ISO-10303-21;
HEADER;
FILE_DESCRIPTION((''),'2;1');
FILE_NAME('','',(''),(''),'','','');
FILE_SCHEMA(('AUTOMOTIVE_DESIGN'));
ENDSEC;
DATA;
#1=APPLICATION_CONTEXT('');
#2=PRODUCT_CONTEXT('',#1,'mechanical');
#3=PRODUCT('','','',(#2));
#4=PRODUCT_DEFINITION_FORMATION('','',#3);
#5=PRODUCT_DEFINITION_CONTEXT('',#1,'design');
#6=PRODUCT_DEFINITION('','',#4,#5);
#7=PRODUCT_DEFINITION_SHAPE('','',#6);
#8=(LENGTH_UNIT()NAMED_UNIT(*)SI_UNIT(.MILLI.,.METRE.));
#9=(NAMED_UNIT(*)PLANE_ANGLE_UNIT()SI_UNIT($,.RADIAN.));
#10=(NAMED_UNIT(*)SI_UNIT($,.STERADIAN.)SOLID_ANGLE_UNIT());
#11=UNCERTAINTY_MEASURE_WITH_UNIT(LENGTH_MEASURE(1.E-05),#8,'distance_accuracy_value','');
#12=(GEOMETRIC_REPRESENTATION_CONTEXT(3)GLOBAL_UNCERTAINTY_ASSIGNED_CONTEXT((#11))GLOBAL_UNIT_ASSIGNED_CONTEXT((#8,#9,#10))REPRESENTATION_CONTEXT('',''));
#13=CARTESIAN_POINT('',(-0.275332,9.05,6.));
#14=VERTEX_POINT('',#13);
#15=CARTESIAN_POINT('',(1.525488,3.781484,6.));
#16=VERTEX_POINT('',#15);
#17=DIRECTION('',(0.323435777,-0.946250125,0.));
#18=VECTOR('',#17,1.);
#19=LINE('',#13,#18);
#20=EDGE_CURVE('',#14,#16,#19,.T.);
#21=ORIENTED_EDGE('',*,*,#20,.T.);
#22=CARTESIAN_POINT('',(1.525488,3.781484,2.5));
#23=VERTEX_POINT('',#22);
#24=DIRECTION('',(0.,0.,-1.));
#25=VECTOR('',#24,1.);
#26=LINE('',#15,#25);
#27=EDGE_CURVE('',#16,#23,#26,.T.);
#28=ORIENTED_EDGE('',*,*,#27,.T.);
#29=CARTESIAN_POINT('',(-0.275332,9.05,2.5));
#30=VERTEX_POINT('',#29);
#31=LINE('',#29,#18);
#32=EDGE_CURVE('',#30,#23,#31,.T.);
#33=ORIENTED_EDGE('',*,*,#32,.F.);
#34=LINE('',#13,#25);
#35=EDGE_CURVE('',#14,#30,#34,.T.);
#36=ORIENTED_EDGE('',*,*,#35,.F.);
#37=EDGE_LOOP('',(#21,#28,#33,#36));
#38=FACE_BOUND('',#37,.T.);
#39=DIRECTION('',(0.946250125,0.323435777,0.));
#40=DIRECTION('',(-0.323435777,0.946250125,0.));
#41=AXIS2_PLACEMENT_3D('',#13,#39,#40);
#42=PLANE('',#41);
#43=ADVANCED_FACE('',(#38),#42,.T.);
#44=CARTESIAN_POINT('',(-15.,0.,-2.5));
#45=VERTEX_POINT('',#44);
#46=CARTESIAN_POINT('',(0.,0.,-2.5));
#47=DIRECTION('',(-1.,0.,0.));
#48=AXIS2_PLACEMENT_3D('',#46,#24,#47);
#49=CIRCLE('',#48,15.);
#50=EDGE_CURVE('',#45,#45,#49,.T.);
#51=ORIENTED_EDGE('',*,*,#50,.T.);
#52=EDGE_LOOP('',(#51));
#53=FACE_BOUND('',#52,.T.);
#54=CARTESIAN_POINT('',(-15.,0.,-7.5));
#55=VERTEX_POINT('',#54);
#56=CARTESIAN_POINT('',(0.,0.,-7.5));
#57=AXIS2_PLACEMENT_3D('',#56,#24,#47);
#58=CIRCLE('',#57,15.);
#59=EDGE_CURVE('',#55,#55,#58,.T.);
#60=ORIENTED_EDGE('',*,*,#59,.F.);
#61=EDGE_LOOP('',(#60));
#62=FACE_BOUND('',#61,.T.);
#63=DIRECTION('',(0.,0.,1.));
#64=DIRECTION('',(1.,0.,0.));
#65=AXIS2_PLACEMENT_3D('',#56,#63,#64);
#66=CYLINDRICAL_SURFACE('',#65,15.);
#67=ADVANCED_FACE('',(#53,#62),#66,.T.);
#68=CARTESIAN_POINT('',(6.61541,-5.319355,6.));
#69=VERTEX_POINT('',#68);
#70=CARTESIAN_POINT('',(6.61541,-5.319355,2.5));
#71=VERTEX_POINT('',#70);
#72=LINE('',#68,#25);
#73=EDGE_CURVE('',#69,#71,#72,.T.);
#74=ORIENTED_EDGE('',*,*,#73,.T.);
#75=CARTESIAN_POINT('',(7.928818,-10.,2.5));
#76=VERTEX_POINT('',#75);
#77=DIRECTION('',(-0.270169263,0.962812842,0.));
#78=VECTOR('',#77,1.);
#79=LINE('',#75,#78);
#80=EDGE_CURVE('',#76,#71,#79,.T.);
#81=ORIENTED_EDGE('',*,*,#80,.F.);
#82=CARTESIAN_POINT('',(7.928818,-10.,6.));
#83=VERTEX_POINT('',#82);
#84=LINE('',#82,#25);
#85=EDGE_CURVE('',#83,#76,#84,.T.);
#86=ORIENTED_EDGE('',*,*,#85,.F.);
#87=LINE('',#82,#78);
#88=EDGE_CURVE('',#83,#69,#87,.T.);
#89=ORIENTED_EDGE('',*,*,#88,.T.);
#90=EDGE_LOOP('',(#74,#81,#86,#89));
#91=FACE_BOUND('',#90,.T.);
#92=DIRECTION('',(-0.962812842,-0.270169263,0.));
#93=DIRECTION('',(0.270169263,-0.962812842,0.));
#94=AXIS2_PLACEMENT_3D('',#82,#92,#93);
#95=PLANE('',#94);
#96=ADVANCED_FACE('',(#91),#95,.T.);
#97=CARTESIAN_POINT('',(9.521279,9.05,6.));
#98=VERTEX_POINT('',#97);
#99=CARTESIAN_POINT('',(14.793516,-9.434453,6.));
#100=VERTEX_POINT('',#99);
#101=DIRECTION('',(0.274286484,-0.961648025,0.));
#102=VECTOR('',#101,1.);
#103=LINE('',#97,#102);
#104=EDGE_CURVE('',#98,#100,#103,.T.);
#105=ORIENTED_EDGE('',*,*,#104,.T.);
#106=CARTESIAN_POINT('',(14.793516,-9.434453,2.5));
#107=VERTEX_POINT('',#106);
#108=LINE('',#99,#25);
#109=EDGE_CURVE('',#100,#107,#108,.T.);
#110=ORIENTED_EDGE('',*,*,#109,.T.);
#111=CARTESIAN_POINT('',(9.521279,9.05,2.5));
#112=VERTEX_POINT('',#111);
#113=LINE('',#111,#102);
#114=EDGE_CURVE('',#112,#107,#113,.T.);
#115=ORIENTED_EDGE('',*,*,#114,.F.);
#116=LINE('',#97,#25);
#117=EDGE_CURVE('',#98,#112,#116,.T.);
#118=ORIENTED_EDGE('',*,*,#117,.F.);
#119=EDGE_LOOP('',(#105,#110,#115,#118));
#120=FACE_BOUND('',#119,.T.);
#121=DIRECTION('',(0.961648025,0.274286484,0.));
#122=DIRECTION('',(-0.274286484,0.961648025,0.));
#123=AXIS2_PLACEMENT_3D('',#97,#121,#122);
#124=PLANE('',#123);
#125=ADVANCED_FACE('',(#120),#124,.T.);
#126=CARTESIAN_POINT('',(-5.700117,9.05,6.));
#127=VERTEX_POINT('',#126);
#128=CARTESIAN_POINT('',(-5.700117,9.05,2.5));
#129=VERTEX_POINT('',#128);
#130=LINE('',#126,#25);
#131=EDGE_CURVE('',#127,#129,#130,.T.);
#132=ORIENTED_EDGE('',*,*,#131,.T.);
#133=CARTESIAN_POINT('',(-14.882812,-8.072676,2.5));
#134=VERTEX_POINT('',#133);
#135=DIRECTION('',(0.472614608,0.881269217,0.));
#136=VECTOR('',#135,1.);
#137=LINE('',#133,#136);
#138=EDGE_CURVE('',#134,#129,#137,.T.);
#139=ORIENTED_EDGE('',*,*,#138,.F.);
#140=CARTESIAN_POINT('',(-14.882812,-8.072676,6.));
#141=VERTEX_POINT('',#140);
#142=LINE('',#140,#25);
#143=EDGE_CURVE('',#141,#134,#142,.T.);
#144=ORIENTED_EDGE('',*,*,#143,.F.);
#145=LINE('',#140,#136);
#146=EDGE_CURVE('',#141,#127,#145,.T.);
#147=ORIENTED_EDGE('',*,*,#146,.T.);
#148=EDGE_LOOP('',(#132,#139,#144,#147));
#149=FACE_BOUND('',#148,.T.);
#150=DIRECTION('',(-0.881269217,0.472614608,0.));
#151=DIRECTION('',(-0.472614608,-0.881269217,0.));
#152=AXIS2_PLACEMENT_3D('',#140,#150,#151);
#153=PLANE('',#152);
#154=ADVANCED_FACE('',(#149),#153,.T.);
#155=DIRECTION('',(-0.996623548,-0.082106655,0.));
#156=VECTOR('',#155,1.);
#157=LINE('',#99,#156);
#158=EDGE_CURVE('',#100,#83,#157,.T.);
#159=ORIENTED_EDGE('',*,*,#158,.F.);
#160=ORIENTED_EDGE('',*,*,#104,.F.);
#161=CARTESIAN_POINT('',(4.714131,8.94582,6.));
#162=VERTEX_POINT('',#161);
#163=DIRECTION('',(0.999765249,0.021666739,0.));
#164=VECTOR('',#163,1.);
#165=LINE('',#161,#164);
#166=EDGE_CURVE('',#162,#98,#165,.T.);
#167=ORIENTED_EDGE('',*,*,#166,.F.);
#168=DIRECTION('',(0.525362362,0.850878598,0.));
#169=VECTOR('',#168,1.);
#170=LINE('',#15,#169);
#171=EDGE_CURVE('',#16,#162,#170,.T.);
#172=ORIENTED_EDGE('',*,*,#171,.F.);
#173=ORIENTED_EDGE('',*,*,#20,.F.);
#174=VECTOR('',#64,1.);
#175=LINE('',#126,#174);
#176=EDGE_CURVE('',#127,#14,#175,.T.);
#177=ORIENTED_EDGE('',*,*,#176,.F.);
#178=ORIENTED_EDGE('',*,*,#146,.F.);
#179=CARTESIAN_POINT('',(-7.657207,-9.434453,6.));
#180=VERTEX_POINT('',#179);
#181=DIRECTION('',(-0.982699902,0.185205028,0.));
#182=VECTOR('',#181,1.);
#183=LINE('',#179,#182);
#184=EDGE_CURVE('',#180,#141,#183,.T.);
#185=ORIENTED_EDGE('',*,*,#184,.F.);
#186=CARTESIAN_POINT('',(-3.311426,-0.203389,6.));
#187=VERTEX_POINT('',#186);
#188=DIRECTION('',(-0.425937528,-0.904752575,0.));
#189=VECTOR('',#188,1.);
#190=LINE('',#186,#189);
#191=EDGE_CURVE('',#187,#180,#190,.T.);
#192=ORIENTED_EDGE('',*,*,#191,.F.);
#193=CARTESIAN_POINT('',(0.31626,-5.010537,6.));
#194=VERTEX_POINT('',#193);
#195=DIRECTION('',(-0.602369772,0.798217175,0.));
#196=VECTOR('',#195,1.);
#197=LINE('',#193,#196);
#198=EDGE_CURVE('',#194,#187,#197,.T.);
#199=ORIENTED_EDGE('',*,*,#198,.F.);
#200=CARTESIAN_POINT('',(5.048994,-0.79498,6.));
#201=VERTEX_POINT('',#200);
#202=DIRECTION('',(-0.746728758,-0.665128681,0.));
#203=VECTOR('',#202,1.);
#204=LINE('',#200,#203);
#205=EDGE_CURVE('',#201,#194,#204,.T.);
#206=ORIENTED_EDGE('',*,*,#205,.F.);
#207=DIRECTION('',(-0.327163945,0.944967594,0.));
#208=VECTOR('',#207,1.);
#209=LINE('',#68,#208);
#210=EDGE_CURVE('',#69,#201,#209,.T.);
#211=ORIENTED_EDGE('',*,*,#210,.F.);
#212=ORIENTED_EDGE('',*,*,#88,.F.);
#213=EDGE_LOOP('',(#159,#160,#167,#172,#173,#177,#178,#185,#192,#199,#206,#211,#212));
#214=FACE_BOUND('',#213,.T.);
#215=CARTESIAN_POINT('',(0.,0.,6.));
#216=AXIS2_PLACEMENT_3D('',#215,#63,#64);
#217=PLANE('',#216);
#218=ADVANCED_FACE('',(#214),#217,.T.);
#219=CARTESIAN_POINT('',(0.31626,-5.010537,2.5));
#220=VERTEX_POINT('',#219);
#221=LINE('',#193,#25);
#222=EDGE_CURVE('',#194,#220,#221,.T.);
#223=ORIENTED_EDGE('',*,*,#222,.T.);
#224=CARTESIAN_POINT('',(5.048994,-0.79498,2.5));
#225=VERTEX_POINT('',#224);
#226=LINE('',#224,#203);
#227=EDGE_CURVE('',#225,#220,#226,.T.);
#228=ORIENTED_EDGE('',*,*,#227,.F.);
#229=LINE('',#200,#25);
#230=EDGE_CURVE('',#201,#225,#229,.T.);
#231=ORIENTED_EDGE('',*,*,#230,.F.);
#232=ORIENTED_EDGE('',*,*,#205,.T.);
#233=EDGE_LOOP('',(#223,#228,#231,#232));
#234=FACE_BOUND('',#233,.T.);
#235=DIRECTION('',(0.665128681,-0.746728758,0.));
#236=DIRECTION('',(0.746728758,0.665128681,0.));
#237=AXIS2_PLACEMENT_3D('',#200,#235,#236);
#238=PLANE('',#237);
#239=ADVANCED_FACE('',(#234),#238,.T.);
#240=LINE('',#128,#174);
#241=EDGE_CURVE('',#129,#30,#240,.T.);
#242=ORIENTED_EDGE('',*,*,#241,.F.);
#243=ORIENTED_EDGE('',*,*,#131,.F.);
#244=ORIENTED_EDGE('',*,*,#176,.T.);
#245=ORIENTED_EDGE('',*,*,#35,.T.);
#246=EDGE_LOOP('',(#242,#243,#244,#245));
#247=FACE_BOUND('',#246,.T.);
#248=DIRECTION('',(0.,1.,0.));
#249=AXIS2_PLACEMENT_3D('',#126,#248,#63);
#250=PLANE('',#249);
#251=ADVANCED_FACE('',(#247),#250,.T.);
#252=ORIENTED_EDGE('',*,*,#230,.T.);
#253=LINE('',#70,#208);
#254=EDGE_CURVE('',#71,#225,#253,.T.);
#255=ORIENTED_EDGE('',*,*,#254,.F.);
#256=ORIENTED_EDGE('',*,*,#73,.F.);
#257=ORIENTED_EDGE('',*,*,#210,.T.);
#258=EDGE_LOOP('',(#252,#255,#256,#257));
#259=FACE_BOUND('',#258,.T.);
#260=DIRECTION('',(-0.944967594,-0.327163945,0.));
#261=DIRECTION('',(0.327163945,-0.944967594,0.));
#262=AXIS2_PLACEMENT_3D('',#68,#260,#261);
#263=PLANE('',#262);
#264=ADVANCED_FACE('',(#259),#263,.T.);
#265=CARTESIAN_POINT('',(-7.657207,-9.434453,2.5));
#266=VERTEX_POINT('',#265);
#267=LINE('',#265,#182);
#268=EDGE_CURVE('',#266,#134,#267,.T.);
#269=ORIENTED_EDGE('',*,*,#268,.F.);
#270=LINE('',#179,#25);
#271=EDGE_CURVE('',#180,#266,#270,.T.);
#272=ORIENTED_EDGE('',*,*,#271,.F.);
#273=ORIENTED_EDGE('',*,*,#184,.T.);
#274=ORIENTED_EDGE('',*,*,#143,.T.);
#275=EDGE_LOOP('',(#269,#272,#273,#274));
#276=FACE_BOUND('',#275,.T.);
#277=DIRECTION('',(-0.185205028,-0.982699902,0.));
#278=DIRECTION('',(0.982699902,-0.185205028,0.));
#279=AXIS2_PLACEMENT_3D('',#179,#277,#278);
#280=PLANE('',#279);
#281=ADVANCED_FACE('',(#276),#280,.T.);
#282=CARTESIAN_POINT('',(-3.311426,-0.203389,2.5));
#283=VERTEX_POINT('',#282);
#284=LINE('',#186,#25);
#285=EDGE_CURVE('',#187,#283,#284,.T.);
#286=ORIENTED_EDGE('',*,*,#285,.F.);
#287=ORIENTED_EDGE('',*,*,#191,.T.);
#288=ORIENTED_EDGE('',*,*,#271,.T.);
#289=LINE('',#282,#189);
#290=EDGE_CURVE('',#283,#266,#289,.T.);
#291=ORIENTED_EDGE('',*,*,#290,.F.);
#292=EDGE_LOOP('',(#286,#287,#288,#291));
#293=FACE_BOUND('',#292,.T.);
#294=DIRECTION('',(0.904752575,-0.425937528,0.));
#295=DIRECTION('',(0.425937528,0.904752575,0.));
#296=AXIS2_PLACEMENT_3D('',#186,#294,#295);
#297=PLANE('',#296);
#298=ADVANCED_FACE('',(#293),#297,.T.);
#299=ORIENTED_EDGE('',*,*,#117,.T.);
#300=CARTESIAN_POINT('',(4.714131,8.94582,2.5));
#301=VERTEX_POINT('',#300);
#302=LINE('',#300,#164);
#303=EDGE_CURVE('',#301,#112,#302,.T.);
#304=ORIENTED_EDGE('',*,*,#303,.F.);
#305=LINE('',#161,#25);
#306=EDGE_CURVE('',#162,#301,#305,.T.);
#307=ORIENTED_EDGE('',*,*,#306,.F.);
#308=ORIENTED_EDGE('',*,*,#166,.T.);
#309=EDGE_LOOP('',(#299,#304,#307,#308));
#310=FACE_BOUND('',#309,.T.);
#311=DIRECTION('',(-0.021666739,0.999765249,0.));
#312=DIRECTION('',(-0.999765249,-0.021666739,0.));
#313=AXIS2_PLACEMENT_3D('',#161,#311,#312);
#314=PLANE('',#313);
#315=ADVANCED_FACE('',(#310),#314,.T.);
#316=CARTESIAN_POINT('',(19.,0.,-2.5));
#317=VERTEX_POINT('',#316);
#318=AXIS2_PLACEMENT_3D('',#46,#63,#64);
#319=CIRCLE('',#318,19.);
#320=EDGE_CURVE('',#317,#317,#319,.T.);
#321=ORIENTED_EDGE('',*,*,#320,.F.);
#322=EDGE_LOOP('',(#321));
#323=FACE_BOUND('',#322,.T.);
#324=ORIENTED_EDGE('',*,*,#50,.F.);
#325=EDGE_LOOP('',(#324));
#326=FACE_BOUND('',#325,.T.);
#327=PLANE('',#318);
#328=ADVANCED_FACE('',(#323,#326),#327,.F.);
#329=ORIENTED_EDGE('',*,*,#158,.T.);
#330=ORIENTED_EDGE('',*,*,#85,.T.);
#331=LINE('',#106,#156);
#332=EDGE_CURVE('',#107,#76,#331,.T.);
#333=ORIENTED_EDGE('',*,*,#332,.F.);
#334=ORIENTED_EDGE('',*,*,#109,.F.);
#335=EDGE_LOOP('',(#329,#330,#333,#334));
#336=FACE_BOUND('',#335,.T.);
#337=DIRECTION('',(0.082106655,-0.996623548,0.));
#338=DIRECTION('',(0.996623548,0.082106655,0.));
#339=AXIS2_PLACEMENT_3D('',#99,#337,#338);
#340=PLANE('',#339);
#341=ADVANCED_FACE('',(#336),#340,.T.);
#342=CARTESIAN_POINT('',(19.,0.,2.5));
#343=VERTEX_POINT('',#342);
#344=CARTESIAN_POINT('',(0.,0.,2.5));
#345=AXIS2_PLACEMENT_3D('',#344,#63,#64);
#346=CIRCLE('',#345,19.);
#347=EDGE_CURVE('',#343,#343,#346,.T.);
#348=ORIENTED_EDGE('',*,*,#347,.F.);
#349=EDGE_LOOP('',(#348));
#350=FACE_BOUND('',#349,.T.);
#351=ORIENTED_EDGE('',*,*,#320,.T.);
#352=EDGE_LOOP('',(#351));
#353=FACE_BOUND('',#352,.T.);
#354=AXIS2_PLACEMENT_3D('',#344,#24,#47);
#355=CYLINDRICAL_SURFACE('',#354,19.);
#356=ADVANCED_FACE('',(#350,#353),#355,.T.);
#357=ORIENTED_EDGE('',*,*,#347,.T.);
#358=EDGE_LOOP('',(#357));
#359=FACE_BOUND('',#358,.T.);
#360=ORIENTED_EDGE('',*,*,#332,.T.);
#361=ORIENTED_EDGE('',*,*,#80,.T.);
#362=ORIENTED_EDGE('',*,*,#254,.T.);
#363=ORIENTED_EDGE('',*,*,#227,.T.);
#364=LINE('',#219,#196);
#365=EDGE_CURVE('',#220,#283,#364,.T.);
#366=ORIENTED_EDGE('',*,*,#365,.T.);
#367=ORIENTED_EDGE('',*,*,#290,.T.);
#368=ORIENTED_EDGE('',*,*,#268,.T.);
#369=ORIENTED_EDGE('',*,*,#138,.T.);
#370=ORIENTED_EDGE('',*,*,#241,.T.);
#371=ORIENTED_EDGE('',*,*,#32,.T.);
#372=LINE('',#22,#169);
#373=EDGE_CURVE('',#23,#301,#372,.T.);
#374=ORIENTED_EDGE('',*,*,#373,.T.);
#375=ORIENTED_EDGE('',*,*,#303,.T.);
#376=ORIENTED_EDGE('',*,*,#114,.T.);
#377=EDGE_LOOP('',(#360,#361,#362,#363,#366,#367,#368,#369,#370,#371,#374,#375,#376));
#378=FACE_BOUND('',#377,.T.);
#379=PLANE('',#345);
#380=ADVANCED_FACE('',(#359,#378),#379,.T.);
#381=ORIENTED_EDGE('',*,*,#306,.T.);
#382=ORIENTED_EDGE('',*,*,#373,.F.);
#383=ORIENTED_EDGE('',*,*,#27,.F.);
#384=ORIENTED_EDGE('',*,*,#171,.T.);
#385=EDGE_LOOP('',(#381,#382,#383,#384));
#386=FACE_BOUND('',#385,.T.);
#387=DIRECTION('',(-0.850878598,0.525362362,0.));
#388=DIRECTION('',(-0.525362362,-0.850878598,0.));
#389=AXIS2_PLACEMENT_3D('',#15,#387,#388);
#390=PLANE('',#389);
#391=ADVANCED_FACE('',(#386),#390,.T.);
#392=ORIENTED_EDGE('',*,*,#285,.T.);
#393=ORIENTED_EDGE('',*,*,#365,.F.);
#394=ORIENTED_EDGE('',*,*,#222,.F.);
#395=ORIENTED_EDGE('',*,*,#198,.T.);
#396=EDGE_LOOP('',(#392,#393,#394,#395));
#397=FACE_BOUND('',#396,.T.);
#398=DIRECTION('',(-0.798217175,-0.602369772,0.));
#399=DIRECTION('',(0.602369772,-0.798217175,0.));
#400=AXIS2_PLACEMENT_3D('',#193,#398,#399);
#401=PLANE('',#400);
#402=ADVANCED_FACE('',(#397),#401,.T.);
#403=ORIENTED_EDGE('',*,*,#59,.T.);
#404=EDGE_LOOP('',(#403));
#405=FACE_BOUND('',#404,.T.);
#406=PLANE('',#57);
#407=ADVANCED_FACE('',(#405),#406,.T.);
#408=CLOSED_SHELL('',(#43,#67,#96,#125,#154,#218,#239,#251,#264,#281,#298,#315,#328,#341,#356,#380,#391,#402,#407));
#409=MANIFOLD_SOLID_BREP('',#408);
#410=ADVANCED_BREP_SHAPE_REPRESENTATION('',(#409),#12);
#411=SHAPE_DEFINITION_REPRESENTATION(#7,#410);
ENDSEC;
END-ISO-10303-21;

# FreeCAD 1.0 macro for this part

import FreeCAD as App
import Part
import Sketcher
Q = App.Units.Quantity


def add_polygon(sketch, points):
    """Adds a closed chain of lines whose ends are joined by coincident constraints."""
    first, n = sketch.GeometryCount, len(points)
    for a, b in zip(points, points[1:] + points[:1]):
        sketch.addGeometry(Part.LineSegment(App.Vector(*a, 0), App.Vector(*b, 0)), False)
    for i in range(n):
        sketch.addConstraint(Sketcher.Constraint("Coincident", first + i, 2, first + (i + 1) % n, 1))

doc = App.newDocument("Part")
body = doc.addObject("PartDesign::Body", "Body")

# Sketch on XY plane
sketch1 = body.newObject("Sketcher::SketchObject", "Sketch")
sketch1.AttachmentSupport = (doc.getObject("XY_Plane"), [""])
sketch1.MapMode = "FlatFace"
sketch1.addGeometry(Part.Circle(App.Vector(0, 0, 0), App.Vector(0, 0, 1), 19), False)
sketch1.addConstraint([
    Sketcher.Constraint("Coincident", 0, 3, -1, 1),
    Sketcher.Constraint("Diameter", 0, Q("38 mm")),
])
pad1 = body.newObject("PartDesign::Pad", "Pad")
pad1.Profile = sketch1
pad1.Length = 5
pad1.Midplane = True

# Sketch on XY plane
sketch2 = body.newObject("Sketcher::SketchObject", "Sketch001")
sketch2.AttachmentSupport = (doc.getObject("XY_Plane"), [""])
sketch2.MapMode = "FlatFace"
sketch2.AttachmentOffset = App.Placement(App.Vector(0, 0, -2.5), App.Rotation())
sketch2.addGeometry(Part.Circle(App.Vector(0, 0, 0), App.Vector(0, 0, 1), 15), False)
sketch2.addConstraint([
    Sketcher.Constraint("Coincident", 0, 3, -1, 1),
    Sketcher.Constraint("Diameter", 0, Q("30 mm")),
])
pad2 = body.newObject("PartDesign::Pad", "Pad001")
pad2.Profile = sketch2
pad2.Length = 5
pad2.Reversed = True

# Sketch on XY plane
sketch3 = body.newObject("Sketcher::SketchObject", "Sketch002")
sketch3.AttachmentSupport = (doc.getObject("XY_Plane"), [""])
sketch3.MapMode = "FlatFace"
sketch3.AttachmentOffset = App.Placement(App.Vector(0, 0, 2.5), App.Rotation())
add_polygon(sketch3, [(-5.700117, 9.05), (-14.882812, -8.072676), (-7.657207, -9.434453), (-3.311426, -0.203389), (0.31626, -5.010537), (5.048994, -0.79498), (6.61541, -5.319355), (7.928818, -10), (14.793516, -9.434453), (9.521279, 9.05), (4.714131, 8.94582), (1.525488, 3.781484), (-0.275332, 9.05)])  # lines 0-12
sketch3.addConstraint([
    Sketcher.Constraint("Horizontal", 12),
    Sketcher.Constraint("Horizontal", 1, 2, 7, 2),
    Sketcher.Constraint("Horizontal", 8, 2, 11, 2),
    Sketcher.Constraint("DistanceY", 6, 2, -1, 1, Q("10 mm")),
    Sketcher.Constraint("DistanceY", -1, 1, 8, 2, Q("9.05 mm")),
    Sketcher.Constraint("DistanceX", 1, 2, 4, 2, Q("12.706201 mm")),
    Sketcher.Constraint("DistanceY", 4, 2, 9, 2, Q("9.740801 mm")),
    Sketcher.Constraint("Distance", 1, Q("7.35281 mm")),
    Sketcher.Constraint("Distance", 2, Q("10.202861 mm")),
    Sketcher.Constraint("Distance", 8, Q("19.221641 mm")),
    Sketcher.Constraint("DistanceX", 12, 2, 12, 1, Q("5.424785 mm")),
    Sketcher.Constraint("DistanceY", 2, 2, -1, 1, Q("0.203389 mm")),
    Sketcher.Constraint("DistanceX", -1, 1, 3, 2, Q("0.31626 mm")),
    Sketcher.Constraint("DistanceY", 4, 2, -1, 1, Q("0.79498 mm")),
    Sketcher.Constraint("DistanceX", -1, 1, 5, 2, Q("6.61541 mm")),
    Sketcher.Constraint("DistanceX", -1, 1, 6, 2, Q("7.928818 mm")),
    Sketcher.Constraint("DistanceX", -1, 1, 8, 2, Q("9.521279 mm")),
    Sketcher.Constraint("DistanceX", -1, 1, 9, 2, Q("4.714131 mm")),
    Sketcher.Constraint("DistanceX", -1, 1, 10, 2, Q("1.525488 mm")),
    Sketcher.Constraint("DistanceX", 1, 2, 2, 2, Q("4.345781 mm")),
    Sketcher.Constraint("DistanceY", 3, 2, 2, 2, Q("4.807148 mm")),
    Sketcher.Constraint("DistanceY", 0, 2, 3, 2, Q("3.062139 mm")),
    Sketcher.Constraint("DistanceY", 5, 2, 3, 2, Q("0.308818 mm")),
    Sketcher.Constraint("DistanceX", 4, 2, 7, 2, Q("9.744521 mm")),
    Sketcher.Constraint("DistanceY", 3, 2, 10, 2, Q("8.792021 mm")),
    Sketcher.Constraint("DistanceX", 11, 2, 10, 2, Q("1.80082 mm")),
])
pad3 = body.newObject("PartDesign::Pad", "Pad002")
pad3.Profile = sketch3
pad3.Length = 3.5

doc.recompute()
